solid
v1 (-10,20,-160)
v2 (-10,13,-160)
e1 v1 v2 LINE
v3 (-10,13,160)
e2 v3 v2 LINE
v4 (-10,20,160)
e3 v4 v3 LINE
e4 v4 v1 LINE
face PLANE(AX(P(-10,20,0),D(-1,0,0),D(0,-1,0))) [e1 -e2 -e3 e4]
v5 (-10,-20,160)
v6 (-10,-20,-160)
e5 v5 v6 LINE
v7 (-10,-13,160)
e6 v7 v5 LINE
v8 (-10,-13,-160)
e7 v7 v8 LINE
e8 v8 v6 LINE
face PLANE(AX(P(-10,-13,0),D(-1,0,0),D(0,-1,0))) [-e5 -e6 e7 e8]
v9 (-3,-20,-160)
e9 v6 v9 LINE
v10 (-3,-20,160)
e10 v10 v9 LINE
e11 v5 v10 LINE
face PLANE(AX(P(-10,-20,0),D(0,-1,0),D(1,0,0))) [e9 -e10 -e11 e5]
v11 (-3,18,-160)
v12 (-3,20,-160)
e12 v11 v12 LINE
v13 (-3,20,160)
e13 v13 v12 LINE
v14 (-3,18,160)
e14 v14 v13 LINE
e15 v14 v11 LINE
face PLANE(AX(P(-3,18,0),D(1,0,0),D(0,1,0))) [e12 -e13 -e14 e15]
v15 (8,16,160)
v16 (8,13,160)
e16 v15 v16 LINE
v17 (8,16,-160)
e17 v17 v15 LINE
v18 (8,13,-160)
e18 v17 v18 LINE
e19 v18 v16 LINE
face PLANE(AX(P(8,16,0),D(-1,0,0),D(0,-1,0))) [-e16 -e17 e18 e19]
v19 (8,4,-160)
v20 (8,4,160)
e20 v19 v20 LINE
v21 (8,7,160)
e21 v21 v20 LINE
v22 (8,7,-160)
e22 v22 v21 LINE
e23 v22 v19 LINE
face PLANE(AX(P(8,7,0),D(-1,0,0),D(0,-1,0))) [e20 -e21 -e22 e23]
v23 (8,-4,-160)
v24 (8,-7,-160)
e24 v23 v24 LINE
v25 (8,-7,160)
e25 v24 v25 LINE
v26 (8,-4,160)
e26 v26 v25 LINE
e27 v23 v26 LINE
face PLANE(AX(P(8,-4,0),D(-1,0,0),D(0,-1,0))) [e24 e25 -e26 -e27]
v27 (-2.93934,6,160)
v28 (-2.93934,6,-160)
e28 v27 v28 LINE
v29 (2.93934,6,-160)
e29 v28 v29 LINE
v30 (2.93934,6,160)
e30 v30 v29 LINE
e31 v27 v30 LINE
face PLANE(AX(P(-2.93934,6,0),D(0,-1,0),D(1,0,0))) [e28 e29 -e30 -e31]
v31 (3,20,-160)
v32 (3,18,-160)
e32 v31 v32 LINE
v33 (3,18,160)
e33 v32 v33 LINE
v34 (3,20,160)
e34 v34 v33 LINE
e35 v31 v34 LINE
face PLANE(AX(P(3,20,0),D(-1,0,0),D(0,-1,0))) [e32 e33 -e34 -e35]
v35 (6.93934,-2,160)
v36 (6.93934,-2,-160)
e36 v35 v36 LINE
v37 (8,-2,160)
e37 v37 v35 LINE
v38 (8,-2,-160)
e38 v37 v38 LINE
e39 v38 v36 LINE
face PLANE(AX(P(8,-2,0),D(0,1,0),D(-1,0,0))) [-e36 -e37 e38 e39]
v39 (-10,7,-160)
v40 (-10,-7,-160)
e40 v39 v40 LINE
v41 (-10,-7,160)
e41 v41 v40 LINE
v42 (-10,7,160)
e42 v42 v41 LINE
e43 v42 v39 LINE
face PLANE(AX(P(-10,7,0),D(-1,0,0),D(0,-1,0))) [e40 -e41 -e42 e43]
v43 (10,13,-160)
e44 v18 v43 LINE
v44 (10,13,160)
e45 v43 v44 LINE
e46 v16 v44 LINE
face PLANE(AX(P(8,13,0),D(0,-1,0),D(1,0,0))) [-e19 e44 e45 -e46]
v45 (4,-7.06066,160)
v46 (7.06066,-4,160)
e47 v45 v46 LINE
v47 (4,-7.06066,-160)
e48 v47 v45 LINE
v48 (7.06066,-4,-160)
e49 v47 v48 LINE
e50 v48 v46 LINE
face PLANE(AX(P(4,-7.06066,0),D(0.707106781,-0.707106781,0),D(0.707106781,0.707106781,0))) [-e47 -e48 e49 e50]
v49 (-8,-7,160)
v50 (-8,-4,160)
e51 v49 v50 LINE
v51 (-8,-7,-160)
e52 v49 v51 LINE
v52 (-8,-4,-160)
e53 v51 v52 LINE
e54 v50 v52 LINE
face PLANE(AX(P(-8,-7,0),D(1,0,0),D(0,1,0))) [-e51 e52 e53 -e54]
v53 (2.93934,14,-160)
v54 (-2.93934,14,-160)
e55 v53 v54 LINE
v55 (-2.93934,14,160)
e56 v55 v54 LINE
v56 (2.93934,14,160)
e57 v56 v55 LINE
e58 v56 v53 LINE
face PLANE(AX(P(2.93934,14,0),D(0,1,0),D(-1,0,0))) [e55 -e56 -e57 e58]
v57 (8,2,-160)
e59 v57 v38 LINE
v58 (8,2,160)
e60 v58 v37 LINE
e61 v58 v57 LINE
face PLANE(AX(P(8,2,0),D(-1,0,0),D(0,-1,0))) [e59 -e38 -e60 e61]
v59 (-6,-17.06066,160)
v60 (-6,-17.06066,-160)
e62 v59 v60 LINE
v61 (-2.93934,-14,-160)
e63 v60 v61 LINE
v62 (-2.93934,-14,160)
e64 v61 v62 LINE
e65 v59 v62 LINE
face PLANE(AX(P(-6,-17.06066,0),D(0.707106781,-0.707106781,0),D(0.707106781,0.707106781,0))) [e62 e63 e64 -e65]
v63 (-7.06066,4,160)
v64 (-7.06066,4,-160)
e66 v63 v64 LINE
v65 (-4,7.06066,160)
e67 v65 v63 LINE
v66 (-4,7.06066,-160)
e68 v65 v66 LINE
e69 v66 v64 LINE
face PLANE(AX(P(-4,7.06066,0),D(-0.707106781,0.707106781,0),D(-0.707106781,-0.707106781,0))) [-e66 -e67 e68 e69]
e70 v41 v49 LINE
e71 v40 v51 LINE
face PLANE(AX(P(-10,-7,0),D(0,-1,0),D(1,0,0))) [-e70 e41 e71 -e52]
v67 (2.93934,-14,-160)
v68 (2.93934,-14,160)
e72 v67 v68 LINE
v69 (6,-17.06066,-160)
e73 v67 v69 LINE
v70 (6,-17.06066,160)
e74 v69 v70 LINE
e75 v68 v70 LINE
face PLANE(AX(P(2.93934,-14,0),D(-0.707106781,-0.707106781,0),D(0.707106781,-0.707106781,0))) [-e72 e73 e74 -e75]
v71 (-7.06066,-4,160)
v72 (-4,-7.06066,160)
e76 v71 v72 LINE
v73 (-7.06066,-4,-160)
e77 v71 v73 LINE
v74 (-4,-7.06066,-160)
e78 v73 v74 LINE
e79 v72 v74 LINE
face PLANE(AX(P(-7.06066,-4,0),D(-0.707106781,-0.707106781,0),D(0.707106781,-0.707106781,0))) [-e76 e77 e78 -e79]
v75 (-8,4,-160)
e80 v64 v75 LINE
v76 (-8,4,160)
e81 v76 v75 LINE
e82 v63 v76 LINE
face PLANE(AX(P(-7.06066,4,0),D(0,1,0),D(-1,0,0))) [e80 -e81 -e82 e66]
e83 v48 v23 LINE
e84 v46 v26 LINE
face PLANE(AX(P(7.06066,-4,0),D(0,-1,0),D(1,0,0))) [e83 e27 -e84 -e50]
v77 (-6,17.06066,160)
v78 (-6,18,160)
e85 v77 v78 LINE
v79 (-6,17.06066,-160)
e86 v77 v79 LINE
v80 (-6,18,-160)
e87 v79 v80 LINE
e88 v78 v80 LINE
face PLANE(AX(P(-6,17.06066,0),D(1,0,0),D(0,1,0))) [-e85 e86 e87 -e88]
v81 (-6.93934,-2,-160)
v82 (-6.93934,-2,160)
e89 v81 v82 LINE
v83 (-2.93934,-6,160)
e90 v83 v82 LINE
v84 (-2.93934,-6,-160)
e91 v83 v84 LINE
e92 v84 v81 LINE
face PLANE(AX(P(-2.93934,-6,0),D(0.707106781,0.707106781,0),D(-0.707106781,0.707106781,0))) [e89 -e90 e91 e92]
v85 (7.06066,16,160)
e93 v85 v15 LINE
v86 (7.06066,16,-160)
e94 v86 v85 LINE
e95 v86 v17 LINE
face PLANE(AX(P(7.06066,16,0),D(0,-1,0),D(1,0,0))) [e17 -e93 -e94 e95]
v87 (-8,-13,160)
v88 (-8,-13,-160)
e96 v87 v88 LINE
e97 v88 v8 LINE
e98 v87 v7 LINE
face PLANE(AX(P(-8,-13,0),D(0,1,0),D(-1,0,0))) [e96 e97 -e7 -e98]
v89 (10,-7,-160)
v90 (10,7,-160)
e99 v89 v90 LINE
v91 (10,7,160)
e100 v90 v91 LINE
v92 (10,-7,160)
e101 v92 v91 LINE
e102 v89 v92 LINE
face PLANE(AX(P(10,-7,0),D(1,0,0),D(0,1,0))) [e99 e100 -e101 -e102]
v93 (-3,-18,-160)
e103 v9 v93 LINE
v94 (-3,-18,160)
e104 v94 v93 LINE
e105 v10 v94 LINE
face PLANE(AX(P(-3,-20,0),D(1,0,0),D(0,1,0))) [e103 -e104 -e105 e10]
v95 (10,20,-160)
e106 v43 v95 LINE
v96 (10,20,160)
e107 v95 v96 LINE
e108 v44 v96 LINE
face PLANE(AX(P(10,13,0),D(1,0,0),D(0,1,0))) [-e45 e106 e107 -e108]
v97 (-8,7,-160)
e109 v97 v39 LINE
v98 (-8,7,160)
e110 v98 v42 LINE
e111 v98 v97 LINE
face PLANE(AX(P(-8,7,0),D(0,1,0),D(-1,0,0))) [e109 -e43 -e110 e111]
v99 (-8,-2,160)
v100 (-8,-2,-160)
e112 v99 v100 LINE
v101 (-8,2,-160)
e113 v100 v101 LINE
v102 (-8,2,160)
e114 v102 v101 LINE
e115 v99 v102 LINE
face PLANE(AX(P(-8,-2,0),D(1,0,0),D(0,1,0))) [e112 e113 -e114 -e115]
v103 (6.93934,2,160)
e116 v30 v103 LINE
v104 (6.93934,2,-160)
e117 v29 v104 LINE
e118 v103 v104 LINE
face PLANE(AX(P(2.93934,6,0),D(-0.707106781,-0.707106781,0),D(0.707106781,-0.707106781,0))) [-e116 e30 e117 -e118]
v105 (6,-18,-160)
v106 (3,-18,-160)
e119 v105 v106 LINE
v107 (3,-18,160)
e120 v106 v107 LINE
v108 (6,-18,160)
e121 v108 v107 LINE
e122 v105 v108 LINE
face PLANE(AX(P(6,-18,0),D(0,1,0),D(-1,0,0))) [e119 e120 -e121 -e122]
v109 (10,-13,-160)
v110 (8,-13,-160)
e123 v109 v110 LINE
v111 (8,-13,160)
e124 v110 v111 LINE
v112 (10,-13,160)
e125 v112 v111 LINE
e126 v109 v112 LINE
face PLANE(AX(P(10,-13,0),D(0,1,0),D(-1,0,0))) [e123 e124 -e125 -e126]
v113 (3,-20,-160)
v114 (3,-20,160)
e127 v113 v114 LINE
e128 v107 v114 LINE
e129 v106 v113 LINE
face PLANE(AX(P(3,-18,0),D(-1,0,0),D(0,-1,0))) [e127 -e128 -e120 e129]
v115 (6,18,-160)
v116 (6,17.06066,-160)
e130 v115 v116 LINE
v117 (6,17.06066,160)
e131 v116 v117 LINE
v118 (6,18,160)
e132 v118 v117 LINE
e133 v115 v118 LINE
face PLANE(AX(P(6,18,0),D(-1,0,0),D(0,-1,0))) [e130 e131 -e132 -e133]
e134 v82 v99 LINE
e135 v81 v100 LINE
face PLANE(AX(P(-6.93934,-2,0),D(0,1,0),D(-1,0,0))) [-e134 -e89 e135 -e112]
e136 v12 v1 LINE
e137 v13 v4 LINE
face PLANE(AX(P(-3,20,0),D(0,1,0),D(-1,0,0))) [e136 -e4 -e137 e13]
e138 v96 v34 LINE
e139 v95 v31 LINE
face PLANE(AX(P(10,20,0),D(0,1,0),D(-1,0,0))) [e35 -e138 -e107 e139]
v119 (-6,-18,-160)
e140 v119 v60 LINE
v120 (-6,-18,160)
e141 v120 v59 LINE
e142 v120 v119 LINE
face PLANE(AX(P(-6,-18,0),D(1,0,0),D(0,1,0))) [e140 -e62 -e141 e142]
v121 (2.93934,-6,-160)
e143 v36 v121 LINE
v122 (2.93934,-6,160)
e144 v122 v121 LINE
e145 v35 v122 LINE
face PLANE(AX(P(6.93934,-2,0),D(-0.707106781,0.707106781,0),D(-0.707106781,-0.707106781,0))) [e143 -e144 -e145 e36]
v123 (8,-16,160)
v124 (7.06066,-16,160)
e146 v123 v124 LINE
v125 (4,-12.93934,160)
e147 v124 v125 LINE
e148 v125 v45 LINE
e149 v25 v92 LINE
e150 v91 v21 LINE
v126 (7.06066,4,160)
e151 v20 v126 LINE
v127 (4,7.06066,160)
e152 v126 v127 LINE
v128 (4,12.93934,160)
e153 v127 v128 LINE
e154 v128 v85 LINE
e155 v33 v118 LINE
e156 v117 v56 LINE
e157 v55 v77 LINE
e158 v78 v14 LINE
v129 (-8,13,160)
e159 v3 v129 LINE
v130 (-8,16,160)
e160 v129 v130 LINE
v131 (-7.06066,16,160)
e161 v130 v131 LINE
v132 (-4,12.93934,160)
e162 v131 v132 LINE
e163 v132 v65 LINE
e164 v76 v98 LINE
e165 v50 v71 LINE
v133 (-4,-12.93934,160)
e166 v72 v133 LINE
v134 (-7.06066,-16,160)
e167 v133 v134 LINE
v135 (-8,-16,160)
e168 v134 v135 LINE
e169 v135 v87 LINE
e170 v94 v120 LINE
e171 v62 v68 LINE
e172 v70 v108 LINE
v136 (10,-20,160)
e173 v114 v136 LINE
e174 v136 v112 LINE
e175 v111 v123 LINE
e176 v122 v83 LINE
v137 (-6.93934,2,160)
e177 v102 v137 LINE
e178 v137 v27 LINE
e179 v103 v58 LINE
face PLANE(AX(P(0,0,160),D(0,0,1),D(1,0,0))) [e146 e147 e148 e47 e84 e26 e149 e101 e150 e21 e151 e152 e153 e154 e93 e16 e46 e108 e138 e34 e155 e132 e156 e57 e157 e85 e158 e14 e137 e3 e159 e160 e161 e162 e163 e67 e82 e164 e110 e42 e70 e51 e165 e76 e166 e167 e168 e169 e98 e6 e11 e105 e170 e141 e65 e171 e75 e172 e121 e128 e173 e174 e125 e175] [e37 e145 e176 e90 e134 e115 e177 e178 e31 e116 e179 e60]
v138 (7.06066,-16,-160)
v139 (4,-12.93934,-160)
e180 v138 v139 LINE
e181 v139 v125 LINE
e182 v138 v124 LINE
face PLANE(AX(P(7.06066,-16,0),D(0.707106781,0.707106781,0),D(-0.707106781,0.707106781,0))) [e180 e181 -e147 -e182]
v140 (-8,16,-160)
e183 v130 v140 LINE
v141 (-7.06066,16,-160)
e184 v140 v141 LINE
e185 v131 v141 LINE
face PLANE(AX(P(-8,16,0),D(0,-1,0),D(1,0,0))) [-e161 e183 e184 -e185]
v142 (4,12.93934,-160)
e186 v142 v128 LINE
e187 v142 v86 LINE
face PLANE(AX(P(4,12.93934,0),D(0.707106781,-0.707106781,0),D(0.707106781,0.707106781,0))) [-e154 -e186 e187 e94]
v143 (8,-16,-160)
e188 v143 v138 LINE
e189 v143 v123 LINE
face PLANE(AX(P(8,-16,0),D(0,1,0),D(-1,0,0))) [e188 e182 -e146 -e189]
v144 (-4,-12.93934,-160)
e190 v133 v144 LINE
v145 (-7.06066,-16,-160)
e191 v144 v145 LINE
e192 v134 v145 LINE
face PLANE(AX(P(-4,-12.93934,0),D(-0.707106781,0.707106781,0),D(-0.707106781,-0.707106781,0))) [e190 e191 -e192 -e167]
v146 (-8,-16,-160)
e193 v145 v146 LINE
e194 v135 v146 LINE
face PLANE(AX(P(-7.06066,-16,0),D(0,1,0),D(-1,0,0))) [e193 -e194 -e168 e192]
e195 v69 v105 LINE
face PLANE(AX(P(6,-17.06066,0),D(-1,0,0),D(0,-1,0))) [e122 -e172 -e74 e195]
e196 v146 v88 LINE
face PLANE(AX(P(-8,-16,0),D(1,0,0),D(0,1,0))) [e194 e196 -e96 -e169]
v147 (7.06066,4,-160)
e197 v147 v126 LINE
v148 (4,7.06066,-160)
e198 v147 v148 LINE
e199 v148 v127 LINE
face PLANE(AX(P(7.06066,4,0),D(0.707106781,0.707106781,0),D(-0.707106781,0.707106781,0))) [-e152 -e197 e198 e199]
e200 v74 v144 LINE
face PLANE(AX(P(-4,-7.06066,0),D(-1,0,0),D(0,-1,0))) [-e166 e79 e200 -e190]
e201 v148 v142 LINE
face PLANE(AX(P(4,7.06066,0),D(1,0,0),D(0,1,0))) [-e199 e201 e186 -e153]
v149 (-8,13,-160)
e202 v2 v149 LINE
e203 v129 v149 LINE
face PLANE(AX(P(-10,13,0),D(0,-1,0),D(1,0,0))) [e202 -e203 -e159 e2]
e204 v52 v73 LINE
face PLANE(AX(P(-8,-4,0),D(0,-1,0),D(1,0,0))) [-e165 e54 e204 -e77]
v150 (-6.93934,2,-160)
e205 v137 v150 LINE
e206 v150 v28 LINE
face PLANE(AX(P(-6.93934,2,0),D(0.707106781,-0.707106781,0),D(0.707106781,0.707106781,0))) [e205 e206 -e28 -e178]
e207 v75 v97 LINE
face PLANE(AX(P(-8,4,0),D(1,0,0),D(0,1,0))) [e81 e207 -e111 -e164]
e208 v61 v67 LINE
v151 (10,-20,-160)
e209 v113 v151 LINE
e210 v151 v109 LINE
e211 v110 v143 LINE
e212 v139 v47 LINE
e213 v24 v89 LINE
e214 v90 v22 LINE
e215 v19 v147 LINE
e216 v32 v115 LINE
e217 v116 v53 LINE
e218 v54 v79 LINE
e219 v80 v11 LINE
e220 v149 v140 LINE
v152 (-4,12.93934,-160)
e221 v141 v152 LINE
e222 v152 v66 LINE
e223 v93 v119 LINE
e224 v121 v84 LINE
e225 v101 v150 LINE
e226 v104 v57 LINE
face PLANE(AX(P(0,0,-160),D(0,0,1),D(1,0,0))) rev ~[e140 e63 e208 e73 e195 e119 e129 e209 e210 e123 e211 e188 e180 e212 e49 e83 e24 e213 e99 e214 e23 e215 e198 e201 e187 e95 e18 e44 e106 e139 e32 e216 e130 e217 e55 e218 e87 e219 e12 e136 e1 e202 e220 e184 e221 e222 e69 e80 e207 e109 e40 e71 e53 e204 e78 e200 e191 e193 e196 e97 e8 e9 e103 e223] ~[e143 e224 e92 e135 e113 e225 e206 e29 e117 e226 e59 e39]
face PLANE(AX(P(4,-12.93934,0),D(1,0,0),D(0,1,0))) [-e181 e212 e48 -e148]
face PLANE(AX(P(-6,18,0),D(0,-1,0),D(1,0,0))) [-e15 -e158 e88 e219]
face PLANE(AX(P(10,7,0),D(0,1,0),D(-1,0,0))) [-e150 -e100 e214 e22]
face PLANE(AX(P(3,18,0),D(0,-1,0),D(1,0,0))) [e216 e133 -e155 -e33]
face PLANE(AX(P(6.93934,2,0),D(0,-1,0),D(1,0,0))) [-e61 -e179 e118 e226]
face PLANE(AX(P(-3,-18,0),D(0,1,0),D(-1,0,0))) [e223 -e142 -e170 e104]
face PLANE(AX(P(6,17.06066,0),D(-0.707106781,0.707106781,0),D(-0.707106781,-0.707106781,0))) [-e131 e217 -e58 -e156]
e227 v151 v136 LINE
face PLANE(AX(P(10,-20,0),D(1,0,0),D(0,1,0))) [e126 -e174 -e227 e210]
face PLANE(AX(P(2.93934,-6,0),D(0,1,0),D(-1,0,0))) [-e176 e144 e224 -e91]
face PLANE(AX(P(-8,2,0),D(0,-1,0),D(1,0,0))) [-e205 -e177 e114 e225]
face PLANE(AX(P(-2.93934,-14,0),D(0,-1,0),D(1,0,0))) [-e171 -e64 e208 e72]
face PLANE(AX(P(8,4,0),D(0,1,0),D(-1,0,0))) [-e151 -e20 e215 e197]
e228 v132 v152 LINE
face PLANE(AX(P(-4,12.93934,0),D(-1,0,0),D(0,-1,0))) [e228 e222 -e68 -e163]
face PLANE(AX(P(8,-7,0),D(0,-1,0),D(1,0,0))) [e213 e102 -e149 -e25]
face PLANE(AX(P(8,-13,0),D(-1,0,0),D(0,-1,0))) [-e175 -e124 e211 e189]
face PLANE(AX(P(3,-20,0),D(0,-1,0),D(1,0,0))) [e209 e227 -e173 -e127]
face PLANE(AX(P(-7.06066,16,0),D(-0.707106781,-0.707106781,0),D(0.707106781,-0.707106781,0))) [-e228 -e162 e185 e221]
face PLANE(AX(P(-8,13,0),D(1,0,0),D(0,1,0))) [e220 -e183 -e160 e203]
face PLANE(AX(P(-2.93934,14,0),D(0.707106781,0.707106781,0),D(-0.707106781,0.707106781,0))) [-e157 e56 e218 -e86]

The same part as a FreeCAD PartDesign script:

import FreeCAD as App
import Part
import Sketcher


def add_polygon(sketch, points):
    """Adds a closed chain of lines whose ends are joined by coincident constraints."""
    first, n = sketch.GeometryCount, len(points)
    for a, b in zip(points, points[1:] + points[:1]):
        sketch.addGeometry(Part.LineSegment(App.Vector(*a, 0), App.Vector(*b, 0)), False)
    for i in range(n):
        sketch.addConstraint(Sketcher.Constraint("Coincident", first + i, 2, first + (i + 1) % n, 1))

doc = App.newDocument("Part")
body = doc.addObject("PartDesign::Body", "Body")

sketch1 = body.newObject("Sketcher::SketchObject", "Sketch")
sketch1.AttachmentSupport = (doc.getObject("XY_Plane"), [""])
sketch1.MapMode = "FlatFace"
add_polygon(sketch1, [(-6, -17.06066), (-2.93934, -14), (2.93934, -14), (6, -17.06066), (6, -18), (3, -18), (3, -20), (10, -20), (10, -13), (8, -13), (8, -16), (7.06066, -16), (4, -12.93934), (4, -7.06066), (7.06066, -4), (8, -4), (8, -7), (10, -7), (10, 7), (8, 7), (8, 4), (7.06066, 4), (4, 7.06066), (4, 12.93934), (7.06066, 16), (8, 16), (8, 13), (10, 13), (10, 20), (3, 20), (3, 18), (6, 18), (6, 17.06066), (2.93934, 14), (-2.93934, 14), (-6, 17.06066), (-6, 18), (-3, 18), (-3, 20), (-10, 20), (-10, 13), (-8, 13), (-8, 16), (-7.06066, 16), (-4, 12.93934), (-4, 7.06066), (-7.06066, 4), (-8, 4), (-8, 7), (-10, 7), (-10, -7), (-8, -7), (-8, -4), (-7.06066, -4), (-4, -7.06066), (-4, -12.93934), (-7.06066, -16), (-8, -16), (-8, -13), (-10, -13), (-10, -20), (-3, -20), (-3, -18), (-6, -18)])
add_polygon(sketch1, [(-2.93934, -6), (-6.93934, -2), (-8, -2), (-8, 2), (-6.93934, 2), (-2.93934, 6), (2.93934, 6), (6.93934, 2), (8, 2), (8, -2), (6.93934, -2), (2.93934, -6)])
sketch1.addConstraint([
    Sketcher.Constraint("Horizontal", 1),
    Sketcher.Constraint("Vertical", 3),
    Sketcher.Constraint("Horizontal", 4),
    Sketcher.Constraint("Vertical", 5),
    Sketcher.Constraint("Horizontal", 6),
    Sketcher.Constraint("Vertical", 7),
    Sketcher.Constraint("Horizontal", 8),
    Sketcher.Constraint("Vertical", 9),
    Sketcher.Constraint("Horizontal", 10),
    Sketcher.Constraint("Vertical", 12),
    Sketcher.Constraint("Horizontal", 14),
    Sketcher.Constraint("Vertical", 15),
    Sketcher.Constraint("Horizontal", 16),
    Sketcher.Constraint("Vertical", 17),
    Sketcher.Constraint("Horizontal", 18),
    Sketcher.Constraint("Vertical", 19),
    Sketcher.Constraint("Horizontal", 20),
    Sketcher.Constraint("Vertical", 22),
    Sketcher.Constraint("Horizontal", 24),
    Sketcher.Constraint("Vertical", 25),
    Sketcher.Constraint("Horizontal", 26),
    Sketcher.Constraint("Vertical", 27),
    Sketcher.Constraint("Horizontal", 28),
    Sketcher.Constraint("Vertical", 29),
    Sketcher.Constraint("Horizontal", 30),
    Sketcher.Constraint("Vertical", 31),
    Sketcher.Constraint("Horizontal", 33),
    Sketcher.Constraint("Vertical", 35),
    Sketcher.Constraint("Horizontal", 36),
    Sketcher.Constraint("Vertical", 37),
    Sketcher.Constraint("Horizontal", 38),
    Sketcher.Constraint("Vertical", 39),
    Sketcher.Constraint("Horizontal", 40),
    Sketcher.Constraint("Vertical", 41),
    Sketcher.Constraint("Horizontal", 42),
    Sketcher.Constraint("Vertical", 44),
    Sketcher.Constraint("Horizontal", 46),
    Sketcher.Constraint("Vertical", 47),
    Sketcher.Constraint("Horizontal", 48),
    Sketcher.Constraint("Vertical", 49),
    Sketcher.Constraint("Horizontal", 50),
    Sketcher.Constraint("Vertical", 51),
    Sketcher.Constraint("Horizontal", 52),
    Sketcher.Constraint("Vertical", 54),
    Sketcher.Constraint("Horizontal", 56),
    Sketcher.Constraint("Vertical", 57),
    Sketcher.Constraint("Horizontal", 58),
    Sketcher.Constraint("Vertical", 59),
    Sketcher.Constraint("Horizontal", 60),
    Sketcher.Constraint("Vertical", 61),
    Sketcher.Constraint("Horizontal", 62),
    Sketcher.Constraint("Vertical", 63),
    Sketcher.Constraint("Horizontal", 65),
    Sketcher.Constraint("Vertical", 66),
    Sketcher.Constraint("Horizontal", 67),
    Sketcher.Constraint("Horizontal", 69),
    Sketcher.Constraint("Horizontal", 71),
    Sketcher.Constraint("Vertical", 72),
    Sketcher.Constraint("Horizontal", 73),
    Sketcher.Constraint("Horizontal", 75),
    Sketcher.Constraint("Symmetric", 0, 2, 32, 2, -1, 1),
    Sketcher.Constraint("Symmetric", 2, 2, 34, 2, -1, 1),
    Sketcher.Constraint("Symmetric", 4, 2, 36, 2, -1, 1),
    Sketcher.Constraint("Symmetric", 6, 2, 38, 2, -1, 1),
    Sketcher.Constraint("Symmetric", 8, 2, 40, 2, -1, 1),
    Sketcher.Constraint("Symmetric", 10, 2, 42, 2, -1, 1),
    Sketcher.Constraint("Symmetric", 11, 2, 43, 2, -1, 1),
    Sketcher.Constraint("Symmetric", 13, 2, 45, 2, -1, 1),
    Sketcher.Constraint("Symmetric", 15, 2, 47, 2, -1, 1),
    Sketcher.Constraint("Symmetric", 17, 2, 49, 2, -1, 1),
    Sketcher.Constraint("Symmetric", 19, 2, 51, 2, -1, 1),
    Sketcher.Constraint("Symmetric", 21, 2, 53, 2, -1, 1),
    Sketcher.Constraint("Symmetric", 23, 2, 55, 2, -1, 1),
    Sketcher.Constraint("Symmetric", 25, 2, 57, 2, -1, 1),
    Sketcher.Constraint("Symmetric", 27, 2, 59, 2, -1, 1),
    Sketcher.Constraint("Symmetric", 29, 2, 61, 2, -1, 1),
    Sketcher.Constraint("Symmetric", 31, 2, 63, 2, -1, 1),
    Sketcher.Constraint("Symmetric", 64, 2, 70, 2, -1, 1),
    Sketcher.Constraint("Symmetric", 66, 2, 72, 2, -1, 1),
    Sketcher.Constraint("Symmetric", 68, 2, 74, 2, -1, 1),
    Sketcher.Constraint("Symmetric", 31, 2, 34, 2, -2),
    Sketcher.Constraint("Symmetric", 29, 2, 36, 2, -2),
    Sketcher.Constraint("Symmetric", 27, 2, 38, 2, -2),
    Sketcher.Constraint("Symmetric", 25, 2, 40, 2, -2),
    Sketcher.Constraint("Symmetric", 23, 2, 42, 2, -2),
    Sketcher.Constraint("Symmetric", 22, 2, 43, 2, -2),
    Sketcher.Constraint("Symmetric", 20, 2, 45, 2, -2),
    Sketcher.Constraint("Symmetric", 18, 2, 47, 2, -2),
    Sketcher.Constraint("Symmetric", 67, 2, 70, 2, -2),
    Sketcher.Constraint("Perpendicular", 0, 2),
    Sketcher.Constraint("Parallel", 2, 11),
    Sketcher.Constraint("Perpendicular", 11, 13),
    Sketcher.Constraint("Perpendicular", 13, 21),
    Sketcher.Constraint("Perpendicular", 21, 23),
    Sketcher.Constraint("Perpendicular", 32, 34),
    Sketcher.Constraint("Perpendicular", 43, 45),
    Sketcher.Constraint("Perpendicular", 45, 53),
    Sketcher.Constraint("Perpendicular", 53, 55),
    Sketcher.Constraint("Perpendicular", 55, 64),
    Sketcher.Constraint("Perpendicular", 64, 68),
    Sketcher.Constraint("Perpendicular", 68, 70),
    Sketcher.Constraint("Perpendicular", 70, 74),
    Sketcher.Constraint("Vertical", 10, 2, 13, 2),
    Sketcher.Constraint("Vertical", 9, 2, 14, 2),
    Sketcher.Constraint("Vertical", 7, 2, 16, 2),
    Sketcher.Constraint("Vertical", 57, 2, 65, 2),
    Sketcher.Constraint("Vertical", 33, 2, 68, 2),
    Sketcher.Constraint("Equal", 56, 3),
    Sketcher.Constraint("Equal", 58, 5),
    Sketcher.Constraint("Equal", 60, 7),
    Sketcher.Constraint("Equal", 62, 9),
    Sketcher.Constraint("Equal", 75, 12),
    Sketcher.Constraint("Equal", 9, 15),
    Sketcher.Constraint("Equal", 2, 11),
    Sketcher.Constraint("DistanceX", 4, 2, 4, 1, 3.0),
    Sketcher.Constraint("DistanceX", 6, 1, 6, 2, 7.0),
    Sketcher.Constraint("DistanceX", 8, 2, 8, 1, 2.0),
    Sketcher.Constraint("DistanceY", 17, 1, 17, 2, 14.0),
    Sketcher.Constraint("DistanceY", 66, 1, 66, 2, 4.0),
    Sketcher.Constraint("DistanceY", 0, 2, -1, 1, 14.0),
    Sketcher.Constraint("DistanceX", -1, 1, 2, 2, 6.0),
    Sketcher.Constraint("DistanceY", -1, 1, 68, 2, 6.0),
    Sketcher.Constraint("DistanceX", 1, 1, 1, 2, 5.87868),
])
pad1 = body.newObject("PartDesign::Pad", "Pad")
pad1.Profile = sketch1
pad1.Length = 320
pad1.Midplane = True

doc.recompute()
